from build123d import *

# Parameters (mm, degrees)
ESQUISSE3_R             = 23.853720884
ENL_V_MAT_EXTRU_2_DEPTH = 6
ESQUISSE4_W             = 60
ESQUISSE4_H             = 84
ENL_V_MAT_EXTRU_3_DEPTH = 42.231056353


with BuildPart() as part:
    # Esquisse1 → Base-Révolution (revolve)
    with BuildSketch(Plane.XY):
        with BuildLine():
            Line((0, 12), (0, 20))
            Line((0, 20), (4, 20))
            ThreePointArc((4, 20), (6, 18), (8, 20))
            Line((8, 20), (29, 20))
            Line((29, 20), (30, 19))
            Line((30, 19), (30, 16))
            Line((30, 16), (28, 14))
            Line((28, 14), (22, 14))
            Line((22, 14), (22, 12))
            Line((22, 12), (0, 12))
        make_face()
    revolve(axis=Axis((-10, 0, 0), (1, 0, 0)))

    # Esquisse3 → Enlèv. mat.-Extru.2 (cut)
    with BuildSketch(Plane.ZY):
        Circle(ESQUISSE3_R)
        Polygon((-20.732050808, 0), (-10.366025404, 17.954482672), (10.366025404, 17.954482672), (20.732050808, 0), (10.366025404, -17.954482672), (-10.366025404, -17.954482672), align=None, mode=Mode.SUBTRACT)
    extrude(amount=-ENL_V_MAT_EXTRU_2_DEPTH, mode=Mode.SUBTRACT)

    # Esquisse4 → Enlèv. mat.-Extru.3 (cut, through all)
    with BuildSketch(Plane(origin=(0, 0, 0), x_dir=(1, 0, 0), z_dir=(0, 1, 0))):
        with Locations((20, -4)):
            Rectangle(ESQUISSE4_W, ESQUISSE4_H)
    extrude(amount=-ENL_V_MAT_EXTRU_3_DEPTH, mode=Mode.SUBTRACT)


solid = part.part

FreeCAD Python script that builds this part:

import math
import FreeCAD as App
import Part
import Sketcher
from FreeCAD import Vector
Q = App.Units.Quantity

doc = App.newDocument("Part")
body = doc.addObject("PartDesign::Body", "Body")

# Sketch on XY plane
sketch1 = body.newObject("Sketcher::SketchObject", "Sketch")
sketch1.AttachmentSupport = (doc.getObject("XY_Plane"), [""])
sketch1.MapMode = "FlatFace"
sketch1.addGeometry([
    Part.LineSegment(Vector(0, 20, 0), Vector(0, 12, 0)),  # 0
    Part.LineSegment(Vector(0, 12, 0), Vector(22, 12, 0)),  # 1
    Part.LineSegment(Vector(22, 12, 0), Vector(22, 14, 0)),  # 2
    Part.LineSegment(Vector(22, 14, 0), Vector(28, 14, 0)),  # 3
    Part.LineSegment(Vector(28, 14, 0), Vector(30, 16, 0)),  # 4
    Part.LineSegment(Vector(30, 16, 0), Vector(30, 19, 0)),  # 5
    Part.LineSegment(Vector(30, 19, 0), Vector(29, 20, 0)),  # 6
    Part.LineSegment(Vector(29, 20, 0), Vector(8, 20, 0)),  # 7
    Part.ArcOfCircle(Part.Circle(Vector(6, 20, 0), Vector(0, 0, 1), 2), math.radians(180), math.radians(360)),  # 8
    Part.LineSegment(Vector(4, 20, 0), Vector(0, 20, 0)),  # 9
], False)
sketch1.addConstraint([
    Sketcher.Constraint("Coincident", 0, 2, 1, 1),
    Sketcher.Constraint("Coincident", 1, 2, 2, 1),
    Sketcher.Constraint("Coincident", 2, 2, 3, 1),
    Sketcher.Constraint("Coincident", 3, 2, 4, 1),
    Sketcher.Constraint("Coincident", 4, 2, 5, 1),
    Sketcher.Constraint("Coincident", 5, 2, 6, 1),
    Sketcher.Constraint("Coincident", 6, 2, 7, 1),
    Sketcher.Constraint("Coincident", 7, 2, 8, 2),
    Sketcher.Constraint("Coincident", 8, 1, 9, 1),
    Sketcher.Constraint("Coincident", 9, 2, 0, 1),
    Sketcher.Constraint("Vertical", 0),
    Sketcher.Constraint("Horizontal", 1),
    Sketcher.Constraint("Vertical", 2),
    Sketcher.Constraint("Horizontal", 3),
    Sketcher.Constraint("Vertical", 5),
    Sketcher.Constraint("Horizontal", 7),
    Sketcher.Constraint("Horizontal", 9),
    Sketcher.Constraint("PointOnObject", 0, 2, -2),
    Sketcher.Constraint("Perpendicular", 4, 6),
    Sketcher.Constraint("Horizontal", 8, 3, 6, 2),
    Sketcher.Constraint("Horizontal", 7, 2, 8, 1),
    Sketcher.Constraint("Radius", 8, Q("2 mm")),
    Sketcher.Constraint("DistanceX", 1, 1, 1, 2, Q("22 mm")),
    Sketcher.Constraint("DistanceX", 3, 1, 3, 2, Q("6 mm")),
    Sketcher.Constraint("DistanceX", 7, 2, 7, 1, Q("21 mm")),
    Sketcher.Constraint("DistanceX", 9, 2, 9, 1, Q("4 mm")),
    Sketcher.Constraint("DistanceY", 0, 2, 0, 1, Q("8 mm")),
    Sketcher.Constraint("DistanceY", 2, 1, 2, 2, Q("2 mm")),
    Sketcher.Constraint("DistanceY", 5, 1, 5, 2, Q("3 mm")),
    Sketcher.Constraint("Angle", 4, Q("45 deg")),
    Sketcher.Constraint("DistanceY", -1, 1, 8, 3, Q("20 mm")),
])
revolution = body.newObject("PartDesign::Revolution", "Revolution")
revolution.Profile = sketch1
revolution.ReferenceAxis = (sketch1, ["H_Axis"])
revolution.Angle = 360

# Sketch on YZ plane
sketch2 = body.newObject("Sketcher::SketchObject", "Sketch001")
sketch2.AttachmentSupport = (doc.getObject("YZ_Plane"), [""])
sketch2.MapMode = "FlatFace"
sketch2.addGeometry([
    Part.Circle(Vector(0, 0, 0), Vector(0, 0, 1), 24),  # 0
    Part.LineSegment(Vector(-18, -10, 0), Vector(0, -21, 0)),  # 1
    Part.LineSegment(Vector(0, -21, 0), Vector(18, -10, 0)),  # 2
    Part.LineSegment(Vector(18, -10, 0), Vector(18, 10, 0)),  # 3
    Part.LineSegment(Vector(18, 10, 0), Vector(0, 21, 0)),  # 4
    Part.LineSegment(Vector(0, 21, 0), Vector(-18, 10, 0)),  # 5
    Part.LineSegment(Vector(-18, 10, 0), Vector(-18, -10, 0)),  # 6
], False)
sketch2.addConstraint([
    Sketcher.Constraint("Coincident", 1, 2, 2, 1),
    Sketcher.Constraint("Coincident", 2, 2, 3, 1),
    Sketcher.Constraint("Coincident", 3, 2, 4, 1),
    Sketcher.Constraint("Coincident", 4, 2, 5, 1),
    Sketcher.Constraint("Coincident", 5, 2, 6, 1),
    Sketcher.Constraint("Coincident", 6, 2, 1, 1),
    Sketcher.Constraint("Vertical", 3),
    Sketcher.Constraint("Vertical", 6),
    Sketcher.Constraint("Coincident", 0, 3, -1, 1),
    Sketcher.Constraint("Symmetric", 1, 2, 4, 2, -1, 1),
    Sketcher.Constraint("Symmetric", 2, 2, 5, 2, -1, 1),
    Sketcher.Constraint("PointOnObject", 1, 2, -2),
    Sketcher.Constraint("Parallel", 1, 4),
    Sketcher.Constraint("Horizontal", 3, 2, 5, 2),
    Sketcher.Constraint("Angle", 1, Q("-30 deg")),
    Sketcher.Constraint("Diameter", 0, Q("47.707442 mm")),
    Sketcher.Constraint("DistanceY", 3, 1, 3, 2, Q("20.732051 mm")),
    Sketcher.Constraint("DistanceY", 1, 2, 4, 2, Q("41.464102 mm")),
])
pocket1 = body.newObject("PartDesign::Pocket", "Pocket")
pocket1.Profile = sketch2
pocket1.Length = 6
pocket1.Reversed = True

# Sketch on XZ plane
sketch3 = body.newObject("Sketcher::SketchObject", "Sketch002")
sketch3.AttachmentSupport = (doc.getObject("XZ_Plane"), [""])
sketch3.MapMode = "FlatFace"
sketch3.addGeometry([
    Part.LineSegment(Vector(-10, -38, 0), Vector(-10, 46, 0)),
    Part.LineSegment(Vector(-10, 46, 0), Vector(50, 46, 0)),
    Part.LineSegment(Vector(50, 46, 0), Vector(50, -38, 0)),
    Part.LineSegment(Vector(50, -38, 0), Vector(-10, -38, 0)),
], False)
sketch3.addConstraint([
    Sketcher.Constraint("Coincident", 0, 2, 1, 1),
    Sketcher.Constraint("Coincident", 1, 2, 2, 1),
    Sketcher.Constraint("Coincident", 2, 2, 3, 1),
    Sketcher.Constraint("Coincident", 3, 2, 0, 1),
    Sketcher.Constraint("Vertical", 0),
    Sketcher.Constraint("Horizontal", 1),
    Sketcher.Constraint("Vertical", 2),
    Sketcher.Constraint("Horizontal", 3),
    Sketcher.Constraint("DistanceX", 1, 1, 1, 2, Q("60 mm")),
    Sketcher.Constraint("DistanceY", 0, 1, 0, 2, Q("84 mm")),
    Sketcher.Constraint("DistanceX", 0, 2, -1, 1, Q("10 mm")),
    Sketcher.Constraint("DistanceY", -1, 1, 0, 2, Q("46 mm")),
])
pocket2 = body.newObject("PartDesign::Pocket", "Pocket001")
pocket2.Profile = sketch3
pocket2.Type = "ThroughAll"
pocket2.Reversed = True

doc.recompute()
